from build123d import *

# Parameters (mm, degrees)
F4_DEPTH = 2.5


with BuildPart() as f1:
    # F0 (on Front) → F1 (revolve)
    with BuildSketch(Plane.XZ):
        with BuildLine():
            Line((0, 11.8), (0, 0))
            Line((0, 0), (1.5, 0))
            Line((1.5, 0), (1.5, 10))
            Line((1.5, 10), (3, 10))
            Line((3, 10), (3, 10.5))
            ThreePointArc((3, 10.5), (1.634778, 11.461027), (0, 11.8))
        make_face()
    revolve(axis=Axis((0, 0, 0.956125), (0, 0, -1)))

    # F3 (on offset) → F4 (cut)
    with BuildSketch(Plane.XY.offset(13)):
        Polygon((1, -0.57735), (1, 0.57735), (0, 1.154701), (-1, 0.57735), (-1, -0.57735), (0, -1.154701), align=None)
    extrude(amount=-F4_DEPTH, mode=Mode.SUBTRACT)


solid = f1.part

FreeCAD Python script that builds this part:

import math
import FreeCAD as App
import Part
import Sketcher


def add_polygon(sketch, points):
    """Adds a closed chain of lines whose ends are joined by coincident constraints."""
    first, n = sketch.GeometryCount, len(points)
    for a, b in zip(points, points[1:] + points[:1]):
        sketch.addGeometry(Part.LineSegment(App.Vector(*a, 0), App.Vector(*b, 0)), False)
    for i in range(n):
        sketch.addConstraint(Sketcher.Constraint("Coincident", first + i, 2, first + (i + 1) % n, 1))

doc = App.newDocument("Part")
body = doc.addObject("PartDesign::Body", "Body")

# Sketch on XZ plane
sketch1 = body.newObject("Sketcher::SketchObject", "Sketch")
sketch1.AttachmentSupport = (doc.getObject("XZ_Plane"), [""])
sketch1.MapMode = "FlatFace"
sketch1.addGeometry([
    Part.LineSegment(App.Vector(0, 11.8, 0), App.Vector(0, 0, 0)),  # 0
    Part.LineSegment(App.Vector(0, 0, 0), App.Vector(1.5, 0, 0)),  # 1
    Part.LineSegment(App.Vector(1.5, 0, 0), App.Vector(1.5, 10, 0)),  # 2
    Part.LineSegment(App.Vector(1.5, 10, 0), App.Vector(3, 10, 0)),  # 3
    Part.LineSegment(App.Vector(3, 10, 0), App.Vector(3, 10.5, 0)),  # 4
    Part.ArcOfCircle(Part.Circle(App.Vector(0, 7.688463, 0), App.Vector(0, 0, 1), 4.111537), math.radians(43.142608), math.radians(90.000006)),  # 5
], False)
sketch1.addConstraint([
    Sketcher.Constraint("Coincident", 0, 2, 1, 1),
    Sketcher.Constraint("Coincident", 1, 2, 2, 1),
    Sketcher.Constraint("Coincident", 2, 2, 3, 1),
    Sketcher.Constraint("Coincident", 3, 2, 4, 1),
    Sketcher.Constraint("Coincident", 4, 2, 5, 1),
    Sketcher.Constraint("Coincident", 5, 2, 0, 1),
    Sketcher.Constraint("Vertical", 0),
    Sketcher.Constraint("Horizontal", 1),
    Sketcher.Constraint("Vertical", 2),
    Sketcher.Constraint("Horizontal", 3),
    Sketcher.Constraint("Vertical", 4),
    Sketcher.Constraint("Coincident", 0, 2, -1, 1),
    Sketcher.Constraint("PointOnObject", 5, 3, -2),
    Sketcher.Constraint("Equal", 1, 3),
    Sketcher.Constraint("DistanceY", 2, 1, 2, 2, 10.0),
    Sketcher.Constraint("DistanceX", 1, 1, 1, 2, 1.5),
    Sketcher.Constraint("DistanceY", 0, 2, 0, 1, 11.8),
    Sketcher.Constraint("DistanceY", 4, 1, 4, 2, 0.5),
])
revolution = body.newObject("PartDesign::Revolution", "Revolution")
revolution.Profile = sketch1
revolution.ReferenceAxis = (sketch1, ["V_Axis"])
revolution.Angle = 360

# Sketch on XY plane
sketch2 = body.newObject("Sketcher::SketchObject", "Sketch001")
sketch2.AttachmentSupport = (doc.getObject("XY_Plane"), [""])
sketch2.MapMode = "FlatFace"
sketch2.AttachmentOffset = App.Placement(App.Vector(0, 0, 13), App.Rotation())
add_polygon(sketch2, [(1, -0.57735), (1, 0.57735), (0, 1.154701), (-1, 0.57735), (-1, -0.57735), (0, -1.154701)])  # lines 0-5
sketch2.addConstraint([
    Sketcher.Constraint("Vertical", 0),
    Sketcher.Constraint("Vertical", 3),
    Sketcher.Constraint("Symmetric", 0, 2, 3, 2, -1, 1),
    Sketcher.Constraint("Symmetric", 1, 2, 4, 2, -1, 1),
    Sketcher.Constraint("PointOnObject", 1, 2, -2),
    Sketcher.Constraint("Parallel", 2, 5),
    Sketcher.Constraint("Horizontal", 0, 2, 2, 2),
    Sketcher.Constraint("DistanceX", -1, 1, 0, 2, 1.0),
    Sketcher.Constraint("DistanceY", 0, 1, 0, 2, 1.1547),
    Sketcher.Constraint("Distance", 1, 1.154701),
])
pocket1 = body.newObject("PartDesign::Pocket", "Pocket")
pocket1.Profile = sketch2
pocket1.Length = 2.5

doc.recompute()
